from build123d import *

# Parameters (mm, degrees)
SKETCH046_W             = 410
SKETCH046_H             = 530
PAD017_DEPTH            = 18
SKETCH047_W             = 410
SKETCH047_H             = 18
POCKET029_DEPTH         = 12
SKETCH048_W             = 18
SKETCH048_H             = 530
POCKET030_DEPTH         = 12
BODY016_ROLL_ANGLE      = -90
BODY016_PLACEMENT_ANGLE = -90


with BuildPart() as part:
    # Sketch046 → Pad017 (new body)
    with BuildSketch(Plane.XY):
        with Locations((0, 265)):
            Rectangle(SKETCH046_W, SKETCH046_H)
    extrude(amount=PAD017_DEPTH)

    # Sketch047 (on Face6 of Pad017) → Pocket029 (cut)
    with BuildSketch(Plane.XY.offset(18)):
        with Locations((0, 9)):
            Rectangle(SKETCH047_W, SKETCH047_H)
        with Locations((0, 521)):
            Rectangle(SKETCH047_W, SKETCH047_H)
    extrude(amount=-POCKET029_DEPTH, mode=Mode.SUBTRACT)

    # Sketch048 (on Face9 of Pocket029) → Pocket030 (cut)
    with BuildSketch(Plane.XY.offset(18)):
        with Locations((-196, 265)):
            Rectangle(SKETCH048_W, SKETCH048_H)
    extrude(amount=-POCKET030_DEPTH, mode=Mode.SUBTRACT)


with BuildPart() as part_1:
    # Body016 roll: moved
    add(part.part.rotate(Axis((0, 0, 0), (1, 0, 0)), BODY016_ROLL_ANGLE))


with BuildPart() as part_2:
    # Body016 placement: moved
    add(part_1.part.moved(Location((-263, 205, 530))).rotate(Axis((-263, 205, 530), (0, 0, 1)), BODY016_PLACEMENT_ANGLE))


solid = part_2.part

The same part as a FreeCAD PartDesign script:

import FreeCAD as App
import Part
import Sketcher
from FreeCAD import Vector

doc = App.newDocument("Part")
params = doc.addObject("Spreadsheet::Sheet", "Params")
for row, (alias, value) in enumerate([
    ("sketch1_width", "410 mm"),
    ("sketch1_height", "530 mm"),
    ("pad1_length", "18 mm"),
    ("sketch2_width", "410 mm"),
    ("sketch2_height", "18 mm"),
    ("pocket1_length", "12 mm"),
    ("sketch3_width", "18 mm"),
    ("sketch3_height", "530 mm"),
    ("pocket2_length", "12 mm"),
], start=1):
    params.set(f"A{row}", alias)
    params.set(f"B{row}", "=" + value)
    params.setAlias(f"B{row}", alias)

body = doc.addObject("PartDesign::Body", "Body")

sketch1 = body.newObject("Sketcher::SketchObject", "Sketch")
sketch1.AttachmentSupport = (doc.getObject("XY_Plane"), [""])
sketch1.MapMode = "FlatFace"
sketch1.addGeometry(Part.LineSegment(Vector(-205, 530, 0), Vector(-205, 0, 0)), False)
sketch1.addGeometry(Part.LineSegment(Vector(-205, 0, 0), Vector(205, 0, 0)), False)
sketch1.addGeometry(Part.LineSegment(Vector(205, 0, 0), Vector(205, 530, 0)), False)
sketch1.addGeometry(Part.LineSegment(Vector(205, 530, 0), Vector(-205, 530, 0)), False)
sketch1.addConstraint(Sketcher.Constraint("Coincident", 0, 2, 1, 1))
sketch1.addConstraint(Sketcher.Constraint("Coincident", 1, 2, 2, 1))
sketch1.addConstraint(Sketcher.Constraint("Coincident", 2, 2, 3, 1))
sketch1.addConstraint(Sketcher.Constraint("Coincident", 3, 2, 0, 1))
sketch1.addConstraint(Sketcher.Constraint("Vertical", 0))
sketch1.addConstraint(Sketcher.Constraint("Horizontal", 1))
sketch1.addConstraint(Sketcher.Constraint("Vertical", 2))
sketch1.addConstraint(Sketcher.Constraint("Horizontal", 3))
sketch1.addConstraint(Sketcher.Constraint("Symmetric", 0, 2, 1, 2, -1, 1))
sketch1.addConstraint(Sketcher.Constraint("DistanceX", 1, 1, 1, 2, 410.0))
sketch1.addConstraint(Sketcher.Constraint("DistanceY", 0, 2, 0, 1, 530.0))
sketch1.setExpression("Constraints[9]", "Params.sketch1_width")
sketch1.setExpression("Constraints[10]", "Params.sketch1_height")
pad1 = body.newObject("PartDesign::Pad", "Pad")
pad1.Profile = sketch1
pad1.setExpression("Length", "Params.pad1_length")

sketch2 = body.newObject("Sketcher::SketchObject", "Sketch001")
sketch2.AttachmentSupport = (doc.getObject("XY_Plane"), [""])
sketch2.MapMode = "FlatFace"
sketch2.AttachmentOffset = App.Placement(Vector(0, 0, 18), App.Rotation())
sketch2.addGeometry(Part.LineSegment(Vector(-205, 18, 0), Vector(-205, 0, 0)), False)
sketch2.addGeometry(Part.LineSegment(Vector(-205, 0, 0), Vector(205, 0, 0)), False)
sketch2.addGeometry(Part.LineSegment(Vector(205, 0, 0), Vector(205, 18, 0)), False)
sketch2.addGeometry(Part.LineSegment(Vector(205, 18, 0), Vector(-205, 18, 0)), False)
sketch2.addGeometry(Part.LineSegment(Vector(-205, 530, 0), Vector(-205, 512, 0)), False)
sketch2.addGeometry(Part.LineSegment(Vector(-205, 512, 0), Vector(205, 512, 0)), False)
sketch2.addGeometry(Part.LineSegment(Vector(205, 512, 0), Vector(205, 530, 0)), False)
sketch2.addGeometry(Part.LineSegment(Vector(205, 530, 0), Vector(-205, 530, 0)), False)
sketch2.addConstraint(Sketcher.Constraint("Coincident", 0, 2, 1, 1))
sketch2.addConstraint(Sketcher.Constraint("Coincident", 1, 2, 2, 1))
sketch2.addConstraint(Sketcher.Constraint("Coincident", 2, 2, 3, 1))
sketch2.addConstraint(Sketcher.Constraint("Coincident", 3, 2, 0, 1))
sketch2.addConstraint(Sketcher.Constraint("Coincident", 4, 2, 5, 1))
sketch2.addConstraint(Sketcher.Constraint("Coincident", 5, 2, 6, 1))
sketch2.addConstraint(Sketcher.Constraint("Coincident", 6, 2, 7, 1))
sketch2.addConstraint(Sketcher.Constraint("Coincident", 7, 2, 4, 1))
sketch2.addConstraint(Sketcher.Constraint("Vertical", 0))
sketch2.addConstraint(Sketcher.Constraint("Horizontal", 1))
sketch2.addConstraint(Sketcher.Constraint("Vertical", 2))
sketch2.addConstraint(Sketcher.Constraint("Horizontal", 3))
sketch2.addConstraint(Sketcher.Constraint("Vertical", 4))
sketch2.addConstraint(Sketcher.Constraint("Horizontal", 5))
sketch2.addConstraint(Sketcher.Constraint("Vertical", 6))
sketch2.addConstraint(Sketcher.Constraint("Horizontal", 7))
sketch2.addConstraint(Sketcher.Constraint("Symmetric", 0, 2, 1, 2, -1, 1))
sketch2.addConstraint(Sketcher.Constraint("Vertical", 3, 2, 4, 2))
sketch2.addConstraint(Sketcher.Constraint("Vertical", 2, 2, 5, 2))
sketch2.addConstraint(Sketcher.Constraint("Equal", 2, 4))
sketch2.addConstraint(Sketcher.Constraint("DistanceX", 1, 1, 1, 2, 410.0))
sketch2.addConstraint(Sketcher.Constraint("DistanceY", 0, 2, 0, 1, 18.0))
sketch2.addConstraint(Sketcher.Constraint("DistanceY", -1, 1, 4, 2, 512.0))
sketch2.setExpression("Constraints[20]", "Params.sketch2_width")
sketch2.setExpression("Constraints[21]", "Params.sketch2_height")
pocket1 = body.newObject("PartDesign::Pocket", "Pocket")
pocket1.Profile = sketch2
pocket1.setExpression("Length", "Params.pocket1_length")

sketch3 = body.newObject("Sketcher::SketchObject", "Sketch002")
sketch3.AttachmentSupport = (doc.getObject("XY_Plane"), [""])
sketch3.MapMode = "FlatFace"
sketch3.AttachmentOffset = App.Placement(Vector(0, 0, 18), App.Rotation())
sketch3.addGeometry(Part.LineSegment(Vector(-205, 530, 0), Vector(-205, 0, 0)), False)
sketch3.addGeometry(Part.LineSegment(Vector(-205, 0, 0), Vector(-187, 0, 0)), False)
sketch3.addGeometry(Part.LineSegment(Vector(-187, 0, 0), Vector(-187, 530, 0)), False)
sketch3.addGeometry(Part.LineSegment(Vector(-187, 530, 0), Vector(-205, 530, 0)), False)
sketch3.addConstraint(Sketcher.Constraint("Coincident", 0, 2, 1, 1))
sketch3.addConstraint(Sketcher.Constraint("Coincident", 1, 2, 2, 1))
sketch3.addConstraint(Sketcher.Constraint("Coincident", 2, 2, 3, 1))
sketch3.addConstraint(Sketcher.Constraint("Coincident", 3, 2, 0, 1))
sketch3.addConstraint(Sketcher.Constraint("Vertical", 0))
sketch3.addConstraint(Sketcher.Constraint("Horizontal", 1))
sketch3.addConstraint(Sketcher.Constraint("Vertical", 2))
sketch3.addConstraint(Sketcher.Constraint("Horizontal", 3))
sketch3.addConstraint(Sketcher.Constraint("PointOnObject", 0, 2, -1))
sketch3.addConstraint(Sketcher.Constraint("DistanceX", 1, 1, 1, 2, 18.0))
sketch3.addConstraint(Sketcher.Constraint("DistanceY", 0, 2, 0, 1, 530.0))
sketch3.addConstraint(Sketcher.Constraint("DistanceX", 0, 2, -1, 1, 205.0))
sketch3.setExpression("Constraints[9]", "Params.sketch3_width")
sketch3.setExpression("Constraints[10]", "Params.sketch3_height")
pocket2 = body.newObject("PartDesign::Pocket", "Pocket001")
pocket2.Profile = sketch3
pocket2.setExpression("Length", "Params.pocket2_length")
body2 = doc.addObject("PartDesign::Body", "Body001")
doc.recompute()

body.Placement = App.Placement(Vector(0, 0, 0), App.Rotation(Vector(1, 0, 0), 270))
boolean = body2.newObject("PartDesign::Boolean", "Boolean")
boolean.Type = "Fuse"
boolean.addObjects([body])
body3 = doc.addObject("PartDesign::Body", "Body002")
doc.recompute()

body2.Placement = App.Placement(Vector(-263, 205, 530), App.Rotation(Vector(0, 0, 1), 270))
boolean2 = body3.newObject("PartDesign::Boolean", "Boolean001")
boolean2.Type = "Fuse"
boolean2.addObjects([body2])

doc.recompute()
